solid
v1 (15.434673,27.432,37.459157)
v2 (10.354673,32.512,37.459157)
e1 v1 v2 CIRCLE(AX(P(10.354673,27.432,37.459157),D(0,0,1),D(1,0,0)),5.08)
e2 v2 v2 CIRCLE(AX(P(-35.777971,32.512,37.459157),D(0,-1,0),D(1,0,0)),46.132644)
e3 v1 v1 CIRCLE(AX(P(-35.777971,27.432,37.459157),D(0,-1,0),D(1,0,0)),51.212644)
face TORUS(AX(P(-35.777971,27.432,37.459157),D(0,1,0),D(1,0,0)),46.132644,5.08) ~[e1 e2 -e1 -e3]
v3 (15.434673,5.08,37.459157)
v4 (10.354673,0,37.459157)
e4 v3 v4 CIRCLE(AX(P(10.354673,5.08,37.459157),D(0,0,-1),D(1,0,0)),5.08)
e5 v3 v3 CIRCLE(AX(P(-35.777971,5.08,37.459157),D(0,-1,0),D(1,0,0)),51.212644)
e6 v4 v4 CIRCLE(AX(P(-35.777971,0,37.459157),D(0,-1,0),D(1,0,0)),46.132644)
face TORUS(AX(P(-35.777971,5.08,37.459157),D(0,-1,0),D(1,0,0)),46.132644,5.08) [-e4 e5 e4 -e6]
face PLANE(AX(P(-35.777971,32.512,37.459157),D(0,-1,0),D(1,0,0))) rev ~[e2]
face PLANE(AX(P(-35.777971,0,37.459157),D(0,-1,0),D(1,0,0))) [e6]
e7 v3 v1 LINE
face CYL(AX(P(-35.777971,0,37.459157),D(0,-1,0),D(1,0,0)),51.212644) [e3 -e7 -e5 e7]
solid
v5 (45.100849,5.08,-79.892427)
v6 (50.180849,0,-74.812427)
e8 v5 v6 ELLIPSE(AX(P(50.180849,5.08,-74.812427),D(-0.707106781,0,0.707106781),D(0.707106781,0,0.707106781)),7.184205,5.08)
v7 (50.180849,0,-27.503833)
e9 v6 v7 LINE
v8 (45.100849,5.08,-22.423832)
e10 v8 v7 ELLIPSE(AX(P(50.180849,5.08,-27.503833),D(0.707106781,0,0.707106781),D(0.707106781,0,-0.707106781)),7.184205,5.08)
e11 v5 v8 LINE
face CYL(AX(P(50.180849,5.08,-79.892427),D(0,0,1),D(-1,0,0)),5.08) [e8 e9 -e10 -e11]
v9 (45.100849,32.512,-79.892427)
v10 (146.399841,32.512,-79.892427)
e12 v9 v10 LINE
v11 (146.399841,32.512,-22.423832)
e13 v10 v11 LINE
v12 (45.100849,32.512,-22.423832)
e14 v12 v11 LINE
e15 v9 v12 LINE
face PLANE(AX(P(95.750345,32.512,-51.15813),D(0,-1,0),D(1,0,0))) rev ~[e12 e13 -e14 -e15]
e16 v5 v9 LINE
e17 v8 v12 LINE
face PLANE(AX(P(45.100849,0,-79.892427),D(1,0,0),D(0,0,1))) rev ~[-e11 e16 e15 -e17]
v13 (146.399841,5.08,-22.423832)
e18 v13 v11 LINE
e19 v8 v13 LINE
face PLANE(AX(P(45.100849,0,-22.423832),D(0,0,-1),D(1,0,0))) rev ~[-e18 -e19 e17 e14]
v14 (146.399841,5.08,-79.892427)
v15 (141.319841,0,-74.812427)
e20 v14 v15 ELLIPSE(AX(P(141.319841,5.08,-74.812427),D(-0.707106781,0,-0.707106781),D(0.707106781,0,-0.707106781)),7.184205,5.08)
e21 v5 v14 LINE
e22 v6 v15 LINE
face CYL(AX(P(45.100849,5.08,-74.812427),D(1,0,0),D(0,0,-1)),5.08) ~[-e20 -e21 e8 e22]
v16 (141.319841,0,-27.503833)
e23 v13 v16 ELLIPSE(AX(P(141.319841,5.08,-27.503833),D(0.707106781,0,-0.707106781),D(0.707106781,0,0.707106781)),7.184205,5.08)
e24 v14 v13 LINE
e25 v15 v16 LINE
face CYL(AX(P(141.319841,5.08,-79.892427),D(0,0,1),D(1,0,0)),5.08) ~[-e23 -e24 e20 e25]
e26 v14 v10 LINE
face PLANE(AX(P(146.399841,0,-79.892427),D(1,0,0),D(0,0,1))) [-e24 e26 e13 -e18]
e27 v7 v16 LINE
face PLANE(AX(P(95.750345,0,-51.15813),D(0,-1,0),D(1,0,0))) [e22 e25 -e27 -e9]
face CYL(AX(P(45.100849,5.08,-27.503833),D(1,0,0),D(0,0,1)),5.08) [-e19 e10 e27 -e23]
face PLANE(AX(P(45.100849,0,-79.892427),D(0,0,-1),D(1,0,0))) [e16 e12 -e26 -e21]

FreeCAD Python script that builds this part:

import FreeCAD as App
import Part
import Sketcher
Q = App.Units.Quantity


def edges_at(feature, points):
    """Names of the edges that pass closest to the given points."""
    edges = feature.Shape.Edges
    near = lambda p: min(range(len(edges)), key=lambda i: edges[i].distToShape(Part.Vertex(*p))[0])
    return sorted({f"Edge{near(p) + 1}" for p in points})

doc = App.newDocument("Part")
body = doc.addObject("PartDesign::Body", "Body")
body.AllowCompound = True

sketch1 = body.newObject("Sketcher::SketchObject", "Sketch")
sketch1.AttachmentSupport = (doc.getObject("XZ_Plane"), [""])
sketch1.MapMode = "FlatFace"
sketch1.addGeometry(Part.Circle(App.Vector(-36, 37, 0), App.Vector(0, 0, 1), 51), False)
sketch1.addGeometry(Part.LineSegment(App.Vector(45, -22, 0), App.Vector(45, -80, 0)), False)
sketch1.addGeometry(Part.LineSegment(App.Vector(45, -80, 0), App.Vector(146, -80, 0)), False)
sketch1.addGeometry(Part.LineSegment(App.Vector(146, -80, 0), App.Vector(146, -22, 0)), False)
sketch1.addGeometry(Part.LineSegment(App.Vector(146, -22, 0), App.Vector(45, -22, 0)), False)
sketch1.addConstraint(Sketcher.Constraint("Coincident", 1, 2, 2, 1))
sketch1.addConstraint(Sketcher.Constraint("Coincident", 2, 2, 3, 1))
sketch1.addConstraint(Sketcher.Constraint("Coincident", 3, 2, 4, 1))
sketch1.addConstraint(Sketcher.Constraint("Coincident", 4, 2, 1, 1))
sketch1.addConstraint(Sketcher.Constraint("Vertical", 1))
sketch1.addConstraint(Sketcher.Constraint("Horizontal", 2))
sketch1.addConstraint(Sketcher.Constraint("Vertical", 3))
sketch1.addConstraint(Sketcher.Constraint("Horizontal", 4))
sketch1.addConstraint(Sketcher.Constraint("Diameter", 0, 102.425288))
sketch1.addConstraint(Sketcher.Constraint("DistanceX", 2, 1, 2, 2, 101.298992))
sketch1.addConstraint(Sketcher.Constraint("DistanceY", 1, 2, 1, 1, 57.468595))
sketch1.addConstraint(Sketcher.Constraint("DistanceX", 0, 3, -1, 1, 35.777971))
sketch1.addConstraint(Sketcher.Constraint("DistanceX", -1, 1, 1, 2, 45.100849))
sketch1.addConstraint(Sketcher.Constraint("DistanceY", 3, 2, 0, 3, 59.882989))
sketch1.addConstraint(Sketcher.Constraint("DistanceY", -1, 1, 0, 3, 37.459157))
pad1 = body.newObject("PartDesign::Pad", "Pad")
pad1.Profile = sketch1
pad1.Length = Q("1.28 in")
pad1.Reversed = True
doc.recompute()

fillet = body.newObject("PartDesign::Fillet", "Fillet")
fillet.Base = (pad1, edges_at(pad1, [
    (15.435, 16.256, 37.459),
    (-86.991, 0, 37.459),
    (-86.991, 32.512, 37.459),
    (95.75, 0, -22.424),
    (45.101, 0, -51.158),
    (95.75, 0, -79.892),
    (146.4, 0, -51.158),
]))
fillet.Radius = Q("0.2 in")

doc.recompute()
